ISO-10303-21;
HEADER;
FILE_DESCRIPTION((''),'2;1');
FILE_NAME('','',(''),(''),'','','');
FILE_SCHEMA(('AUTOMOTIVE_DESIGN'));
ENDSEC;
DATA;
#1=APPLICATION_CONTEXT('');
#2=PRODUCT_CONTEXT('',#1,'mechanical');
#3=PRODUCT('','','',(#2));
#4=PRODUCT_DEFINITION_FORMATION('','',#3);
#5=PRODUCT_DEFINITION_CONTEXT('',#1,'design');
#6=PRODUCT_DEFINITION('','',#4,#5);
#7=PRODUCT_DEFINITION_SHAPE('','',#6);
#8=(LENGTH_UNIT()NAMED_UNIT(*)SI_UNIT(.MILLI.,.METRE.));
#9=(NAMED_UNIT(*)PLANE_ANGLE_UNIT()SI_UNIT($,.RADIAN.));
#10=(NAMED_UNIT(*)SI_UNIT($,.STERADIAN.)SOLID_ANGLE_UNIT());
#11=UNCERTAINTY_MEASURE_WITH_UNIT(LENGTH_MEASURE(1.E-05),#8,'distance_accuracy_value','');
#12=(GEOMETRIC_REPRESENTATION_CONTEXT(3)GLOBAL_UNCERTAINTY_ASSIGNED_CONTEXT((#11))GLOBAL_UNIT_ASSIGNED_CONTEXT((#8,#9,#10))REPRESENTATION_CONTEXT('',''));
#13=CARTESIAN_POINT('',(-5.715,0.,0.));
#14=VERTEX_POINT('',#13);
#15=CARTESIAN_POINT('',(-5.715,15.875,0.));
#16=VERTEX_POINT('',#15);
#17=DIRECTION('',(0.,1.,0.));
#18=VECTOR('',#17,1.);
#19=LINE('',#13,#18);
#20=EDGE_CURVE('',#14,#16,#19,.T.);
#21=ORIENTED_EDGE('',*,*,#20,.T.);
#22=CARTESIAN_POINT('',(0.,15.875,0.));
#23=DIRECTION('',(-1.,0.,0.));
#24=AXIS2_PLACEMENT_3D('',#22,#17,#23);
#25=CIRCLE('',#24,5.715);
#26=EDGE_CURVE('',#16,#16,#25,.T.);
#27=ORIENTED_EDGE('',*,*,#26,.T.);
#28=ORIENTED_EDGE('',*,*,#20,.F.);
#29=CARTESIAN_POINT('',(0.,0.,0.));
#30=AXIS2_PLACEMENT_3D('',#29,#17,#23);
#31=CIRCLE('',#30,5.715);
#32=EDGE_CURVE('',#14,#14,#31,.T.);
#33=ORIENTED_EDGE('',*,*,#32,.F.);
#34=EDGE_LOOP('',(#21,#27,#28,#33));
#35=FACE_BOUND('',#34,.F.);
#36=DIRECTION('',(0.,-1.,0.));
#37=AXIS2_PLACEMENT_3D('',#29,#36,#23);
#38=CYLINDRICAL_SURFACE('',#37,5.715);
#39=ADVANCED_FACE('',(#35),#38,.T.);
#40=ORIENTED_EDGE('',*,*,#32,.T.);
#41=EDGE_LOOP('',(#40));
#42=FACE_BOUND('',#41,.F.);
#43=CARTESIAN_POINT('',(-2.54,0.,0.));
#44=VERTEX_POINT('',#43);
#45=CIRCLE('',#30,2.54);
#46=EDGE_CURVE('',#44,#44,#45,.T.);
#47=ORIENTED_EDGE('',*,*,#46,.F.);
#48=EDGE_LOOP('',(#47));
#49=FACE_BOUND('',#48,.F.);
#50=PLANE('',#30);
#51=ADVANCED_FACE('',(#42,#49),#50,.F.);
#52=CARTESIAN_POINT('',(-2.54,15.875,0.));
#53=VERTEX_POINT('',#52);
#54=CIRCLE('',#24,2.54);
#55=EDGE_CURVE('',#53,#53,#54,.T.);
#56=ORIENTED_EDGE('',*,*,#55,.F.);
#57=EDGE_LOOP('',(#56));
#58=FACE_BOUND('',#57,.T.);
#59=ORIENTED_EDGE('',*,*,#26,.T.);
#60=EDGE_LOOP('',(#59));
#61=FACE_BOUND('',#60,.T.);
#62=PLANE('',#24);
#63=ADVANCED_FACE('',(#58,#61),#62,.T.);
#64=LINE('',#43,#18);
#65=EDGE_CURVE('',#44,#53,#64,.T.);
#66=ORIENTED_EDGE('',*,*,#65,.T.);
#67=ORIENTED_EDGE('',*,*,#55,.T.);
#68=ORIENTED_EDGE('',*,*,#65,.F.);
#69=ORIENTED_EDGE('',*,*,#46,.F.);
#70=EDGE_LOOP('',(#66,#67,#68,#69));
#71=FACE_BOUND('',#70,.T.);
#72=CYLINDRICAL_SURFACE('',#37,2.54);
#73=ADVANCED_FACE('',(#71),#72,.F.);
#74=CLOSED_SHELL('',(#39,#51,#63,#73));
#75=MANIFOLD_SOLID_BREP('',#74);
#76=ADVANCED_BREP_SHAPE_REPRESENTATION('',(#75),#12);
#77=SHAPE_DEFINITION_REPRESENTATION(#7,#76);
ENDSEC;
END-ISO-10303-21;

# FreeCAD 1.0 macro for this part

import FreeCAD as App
import Part
import Sketcher
from FreeCAD import Vector
Q = App.Units.Quantity

doc = App.newDocument("Part")
params = doc.addObject("Spreadsheet::Sheet", "Params")
for row, (alias, value) in enumerate([
    ("sketch1_diameter", "0.2 in"),
    ("sketch1_diameter2", "0.45 in"),
    ("pad1_length", "0.625 in"),
], start=1):
    params.set(f"A{row}", alias)
    params.set(f"B{row}", "=" + value)
    params.setAlias(f"B{row}", alias)

body = doc.addObject("PartDesign::Body", "Body")

sketch1 = doc.addObject("Sketcher::SketchObject", "Sketch")
body.addObject(sketch1)
sketch1.AttachmentSupport = (doc.XZ_Plane, [""])
sketch1.MapMode = "FlatFace"
sketch1.addGeometry([
    Part.Circle(Vector(0, 0, 0), Vector(0, 0, 1), 5.7),
    Part.Circle(Vector(0, 0, 0), Vector(0, 0, 1), 2.5),
], False)
sketch1.addConstraint([
    Sketcher.Constraint("Coincident", 0, 3, -1, 1),
    Sketcher.Constraint("Coincident", 1, 3, -1, 1),
    Sketcher.Constraint("Diameter", 1, Q("0.2 in")),
    Sketcher.Constraint("Diameter", 0, Q("0.45 in")),
])
sketch1.setExpression("Constraints[2]", "Params.sketch1_diameter")
sketch1.setExpression("Constraints[3]", "Params.sketch1_diameter2")
pad1 = doc.addObject("PartDesign::Pad", "Pad")
body.addObject(pad1)
pad1.Profile = sketch1
pad1.setExpression("Length", "Params.pad1_length")
pad1.Reversed = True

doc.recompute()
